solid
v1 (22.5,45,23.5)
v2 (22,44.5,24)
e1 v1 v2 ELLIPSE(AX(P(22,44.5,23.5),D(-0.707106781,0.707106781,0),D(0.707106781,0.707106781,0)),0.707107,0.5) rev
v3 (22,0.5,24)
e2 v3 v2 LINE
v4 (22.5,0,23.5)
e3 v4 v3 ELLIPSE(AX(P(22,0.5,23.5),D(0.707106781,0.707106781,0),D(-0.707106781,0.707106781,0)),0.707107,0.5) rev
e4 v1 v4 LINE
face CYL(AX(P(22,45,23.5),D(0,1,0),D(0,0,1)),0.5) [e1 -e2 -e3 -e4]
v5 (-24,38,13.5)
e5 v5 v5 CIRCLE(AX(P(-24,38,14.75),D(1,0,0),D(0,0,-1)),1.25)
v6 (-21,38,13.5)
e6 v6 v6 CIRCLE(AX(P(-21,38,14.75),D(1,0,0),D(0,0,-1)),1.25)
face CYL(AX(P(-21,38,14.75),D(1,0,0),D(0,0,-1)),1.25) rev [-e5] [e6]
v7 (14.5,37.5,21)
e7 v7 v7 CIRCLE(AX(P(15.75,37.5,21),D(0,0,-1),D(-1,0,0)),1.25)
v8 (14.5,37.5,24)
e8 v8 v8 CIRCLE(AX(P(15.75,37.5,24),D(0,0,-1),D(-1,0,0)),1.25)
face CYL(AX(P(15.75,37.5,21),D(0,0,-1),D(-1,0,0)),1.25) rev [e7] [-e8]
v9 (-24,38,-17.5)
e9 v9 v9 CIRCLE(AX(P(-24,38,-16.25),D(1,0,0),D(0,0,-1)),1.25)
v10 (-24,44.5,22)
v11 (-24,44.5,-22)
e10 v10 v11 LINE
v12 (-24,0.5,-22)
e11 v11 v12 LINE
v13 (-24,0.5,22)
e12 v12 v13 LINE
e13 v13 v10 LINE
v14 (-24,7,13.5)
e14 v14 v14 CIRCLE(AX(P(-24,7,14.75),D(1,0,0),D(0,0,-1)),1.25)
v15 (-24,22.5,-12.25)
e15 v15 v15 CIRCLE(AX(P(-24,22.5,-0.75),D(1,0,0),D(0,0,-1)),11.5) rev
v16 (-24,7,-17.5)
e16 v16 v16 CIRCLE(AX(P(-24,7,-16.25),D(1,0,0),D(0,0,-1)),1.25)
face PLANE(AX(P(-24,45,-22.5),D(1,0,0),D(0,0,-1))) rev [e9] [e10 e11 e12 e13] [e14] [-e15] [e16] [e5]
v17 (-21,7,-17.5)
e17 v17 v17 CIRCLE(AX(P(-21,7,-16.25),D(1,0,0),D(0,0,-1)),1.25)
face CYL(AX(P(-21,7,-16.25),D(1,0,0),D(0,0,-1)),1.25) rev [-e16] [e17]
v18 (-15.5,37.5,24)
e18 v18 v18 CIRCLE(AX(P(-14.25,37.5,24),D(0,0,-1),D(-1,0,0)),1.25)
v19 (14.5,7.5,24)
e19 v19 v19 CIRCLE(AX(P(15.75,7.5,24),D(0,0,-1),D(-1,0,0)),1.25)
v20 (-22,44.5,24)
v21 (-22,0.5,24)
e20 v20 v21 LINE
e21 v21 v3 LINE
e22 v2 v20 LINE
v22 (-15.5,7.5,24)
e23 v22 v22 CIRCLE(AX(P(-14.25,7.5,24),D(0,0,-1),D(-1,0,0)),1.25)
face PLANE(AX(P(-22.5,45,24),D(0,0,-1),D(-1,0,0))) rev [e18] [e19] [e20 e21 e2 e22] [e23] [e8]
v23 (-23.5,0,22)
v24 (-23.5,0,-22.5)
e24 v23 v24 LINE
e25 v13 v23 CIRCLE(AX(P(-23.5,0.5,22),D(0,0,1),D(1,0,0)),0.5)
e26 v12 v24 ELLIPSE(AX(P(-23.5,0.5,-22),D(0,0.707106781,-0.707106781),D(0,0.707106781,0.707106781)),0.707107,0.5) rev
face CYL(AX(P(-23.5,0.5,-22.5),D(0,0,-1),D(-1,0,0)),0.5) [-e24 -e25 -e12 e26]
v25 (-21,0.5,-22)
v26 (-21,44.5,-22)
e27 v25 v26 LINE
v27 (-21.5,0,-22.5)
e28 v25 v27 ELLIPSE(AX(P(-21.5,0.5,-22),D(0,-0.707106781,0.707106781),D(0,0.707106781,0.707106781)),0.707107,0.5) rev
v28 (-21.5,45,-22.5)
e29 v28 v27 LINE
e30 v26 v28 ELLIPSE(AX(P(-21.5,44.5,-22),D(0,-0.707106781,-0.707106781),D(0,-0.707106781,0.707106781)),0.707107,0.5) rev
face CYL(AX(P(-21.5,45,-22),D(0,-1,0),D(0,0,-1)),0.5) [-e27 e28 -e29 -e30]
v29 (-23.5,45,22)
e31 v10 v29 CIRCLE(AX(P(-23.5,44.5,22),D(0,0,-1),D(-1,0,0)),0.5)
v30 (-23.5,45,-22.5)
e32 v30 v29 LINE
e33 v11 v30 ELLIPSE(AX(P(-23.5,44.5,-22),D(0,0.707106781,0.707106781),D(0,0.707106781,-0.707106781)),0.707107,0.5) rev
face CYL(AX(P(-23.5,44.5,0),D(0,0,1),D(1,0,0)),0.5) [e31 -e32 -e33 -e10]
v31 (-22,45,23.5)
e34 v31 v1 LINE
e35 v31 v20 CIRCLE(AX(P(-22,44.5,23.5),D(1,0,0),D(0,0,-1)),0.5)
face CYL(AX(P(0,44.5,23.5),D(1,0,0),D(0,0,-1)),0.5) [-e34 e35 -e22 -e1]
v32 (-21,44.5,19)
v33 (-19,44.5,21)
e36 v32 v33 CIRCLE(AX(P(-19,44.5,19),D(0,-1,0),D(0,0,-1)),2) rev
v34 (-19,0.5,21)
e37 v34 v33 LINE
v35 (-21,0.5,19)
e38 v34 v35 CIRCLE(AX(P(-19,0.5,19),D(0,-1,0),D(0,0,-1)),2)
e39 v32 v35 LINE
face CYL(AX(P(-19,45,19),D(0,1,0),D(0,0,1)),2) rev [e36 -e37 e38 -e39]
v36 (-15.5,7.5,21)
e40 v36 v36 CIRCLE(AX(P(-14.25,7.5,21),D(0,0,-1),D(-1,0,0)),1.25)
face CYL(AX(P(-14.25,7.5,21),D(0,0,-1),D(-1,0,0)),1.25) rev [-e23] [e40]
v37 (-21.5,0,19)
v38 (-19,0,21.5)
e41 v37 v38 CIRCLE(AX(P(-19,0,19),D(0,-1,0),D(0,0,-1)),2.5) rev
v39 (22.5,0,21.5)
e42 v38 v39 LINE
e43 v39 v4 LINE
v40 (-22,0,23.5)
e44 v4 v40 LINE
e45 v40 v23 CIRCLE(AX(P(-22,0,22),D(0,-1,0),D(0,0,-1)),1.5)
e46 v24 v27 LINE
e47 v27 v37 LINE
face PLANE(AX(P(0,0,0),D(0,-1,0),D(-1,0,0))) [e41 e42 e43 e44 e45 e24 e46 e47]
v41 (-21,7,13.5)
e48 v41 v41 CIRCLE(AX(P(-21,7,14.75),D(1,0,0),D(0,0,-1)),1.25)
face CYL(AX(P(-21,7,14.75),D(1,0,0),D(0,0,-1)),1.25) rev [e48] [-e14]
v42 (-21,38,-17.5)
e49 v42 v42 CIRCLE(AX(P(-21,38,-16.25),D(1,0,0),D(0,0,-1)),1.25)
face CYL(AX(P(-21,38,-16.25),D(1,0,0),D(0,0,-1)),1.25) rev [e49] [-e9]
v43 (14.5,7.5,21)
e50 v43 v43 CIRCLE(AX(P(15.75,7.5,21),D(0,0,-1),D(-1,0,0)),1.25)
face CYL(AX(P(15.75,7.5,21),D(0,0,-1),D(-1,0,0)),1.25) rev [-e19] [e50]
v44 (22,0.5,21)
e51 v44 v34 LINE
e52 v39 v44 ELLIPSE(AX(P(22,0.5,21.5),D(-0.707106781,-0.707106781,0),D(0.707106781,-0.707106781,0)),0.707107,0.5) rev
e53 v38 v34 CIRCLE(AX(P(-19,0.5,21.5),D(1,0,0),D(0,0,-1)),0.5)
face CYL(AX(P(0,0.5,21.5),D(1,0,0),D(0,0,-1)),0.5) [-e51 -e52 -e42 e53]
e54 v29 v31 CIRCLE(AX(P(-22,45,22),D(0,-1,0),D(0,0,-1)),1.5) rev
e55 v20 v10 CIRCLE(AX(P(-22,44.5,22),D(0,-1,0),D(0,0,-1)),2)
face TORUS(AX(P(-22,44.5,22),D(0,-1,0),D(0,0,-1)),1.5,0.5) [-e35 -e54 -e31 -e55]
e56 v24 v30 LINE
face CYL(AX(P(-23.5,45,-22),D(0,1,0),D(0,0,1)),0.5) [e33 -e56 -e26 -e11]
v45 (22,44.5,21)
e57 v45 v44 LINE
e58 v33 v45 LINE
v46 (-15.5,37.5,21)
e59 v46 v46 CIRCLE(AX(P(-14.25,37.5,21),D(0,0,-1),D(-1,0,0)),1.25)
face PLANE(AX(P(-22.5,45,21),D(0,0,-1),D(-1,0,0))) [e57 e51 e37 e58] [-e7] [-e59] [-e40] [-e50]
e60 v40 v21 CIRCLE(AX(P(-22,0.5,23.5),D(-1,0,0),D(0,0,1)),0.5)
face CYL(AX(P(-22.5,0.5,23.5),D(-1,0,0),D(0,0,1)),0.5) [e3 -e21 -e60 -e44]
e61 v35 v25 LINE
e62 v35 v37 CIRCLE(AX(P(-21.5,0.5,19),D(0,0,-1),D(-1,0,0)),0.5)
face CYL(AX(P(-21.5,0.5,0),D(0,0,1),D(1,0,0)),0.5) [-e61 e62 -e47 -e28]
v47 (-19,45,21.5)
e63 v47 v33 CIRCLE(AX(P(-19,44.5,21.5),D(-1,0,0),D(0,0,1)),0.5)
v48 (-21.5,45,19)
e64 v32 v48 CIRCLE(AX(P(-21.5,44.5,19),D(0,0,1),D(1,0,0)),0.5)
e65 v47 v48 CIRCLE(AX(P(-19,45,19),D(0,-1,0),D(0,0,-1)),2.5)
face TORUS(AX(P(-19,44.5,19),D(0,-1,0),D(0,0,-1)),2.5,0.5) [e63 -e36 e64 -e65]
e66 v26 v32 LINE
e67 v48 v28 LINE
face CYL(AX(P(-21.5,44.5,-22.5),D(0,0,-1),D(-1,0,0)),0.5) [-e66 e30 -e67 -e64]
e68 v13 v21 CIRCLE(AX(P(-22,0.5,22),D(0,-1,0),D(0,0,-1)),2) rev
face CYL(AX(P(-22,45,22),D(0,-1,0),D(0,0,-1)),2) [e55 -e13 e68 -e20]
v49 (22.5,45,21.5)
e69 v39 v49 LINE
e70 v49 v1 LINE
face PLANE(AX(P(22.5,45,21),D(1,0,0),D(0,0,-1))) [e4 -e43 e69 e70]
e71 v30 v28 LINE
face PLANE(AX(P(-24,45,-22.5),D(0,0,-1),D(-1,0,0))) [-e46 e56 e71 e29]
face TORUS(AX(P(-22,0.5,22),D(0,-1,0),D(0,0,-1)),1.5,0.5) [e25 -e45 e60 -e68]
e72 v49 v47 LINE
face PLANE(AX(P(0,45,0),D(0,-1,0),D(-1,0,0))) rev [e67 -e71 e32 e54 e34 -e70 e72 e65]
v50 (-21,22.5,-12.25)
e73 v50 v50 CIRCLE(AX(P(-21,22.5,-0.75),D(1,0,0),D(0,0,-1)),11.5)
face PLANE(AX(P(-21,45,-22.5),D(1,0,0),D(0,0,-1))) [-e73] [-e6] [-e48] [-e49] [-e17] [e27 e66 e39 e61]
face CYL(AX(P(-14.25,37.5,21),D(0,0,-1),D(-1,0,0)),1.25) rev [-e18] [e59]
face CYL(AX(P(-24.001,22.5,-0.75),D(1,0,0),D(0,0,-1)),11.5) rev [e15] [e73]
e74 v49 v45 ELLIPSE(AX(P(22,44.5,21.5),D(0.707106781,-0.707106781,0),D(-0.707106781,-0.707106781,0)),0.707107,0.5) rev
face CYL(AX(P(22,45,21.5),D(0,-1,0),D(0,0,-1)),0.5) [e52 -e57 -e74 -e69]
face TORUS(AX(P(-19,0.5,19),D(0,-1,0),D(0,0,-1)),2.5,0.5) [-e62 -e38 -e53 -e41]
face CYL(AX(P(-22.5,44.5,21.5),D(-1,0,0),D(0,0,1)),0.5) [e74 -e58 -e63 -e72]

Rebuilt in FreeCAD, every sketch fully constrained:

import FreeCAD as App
import Part
import Sketcher

V = App.Vector


def edges_at(feature, points):
    """Names of the edges that pass closest to the given points."""
    edges = feature.Shape.Edges
    near = lambda p: min(range(len(edges)), key=lambda i: edges[i].distToShape(Part.Vertex(*p))[0])
    return sorted({f"Edge{near(p) + 1}" for p in points})


def add_polygon(sketch, points):
    """Adds a closed chain of lines whose ends are joined by coincident constraints."""
    first, n = sketch.GeometryCount, len(points)
    for a, b in zip(points, points[1:] + points[:1]):
        sketch.addGeometry(Part.LineSegment(App.Vector(*a, 0), App.Vector(*b, 0)), False)
    for i in range(n):
        sketch.addConstraint(Sketcher.Constraint("Coincident", first + i, 2, first + (i + 1) % n, 1))

doc = App.newDocument("Part")
body = doc.addObject("PartDesign::Body", "Body")

# Sketch on XZ plane
sketch1 = body.newObject("Sketcher::SketchObject", "Sketch")
sketch1.AttachmentSupport = (doc.getObject("XZ_Plane"), [""])
sketch1.MapMode = "FlatFace"
add_polygon(sketch1, [(-24, -22.5), (-24, 24), (22.5, 24), (22.5, 21), (-21, 21), (-21, -22.5)])  # lines 0-5
sketch1.addConstraint([
    Sketcher.Constraint("Vertical", 0),
    Sketcher.Constraint("Horizontal", 1),
    Sketcher.Constraint("Vertical", 2),
    Sketcher.Constraint("Horizontal", 3),
    Sketcher.Constraint("Vertical", 4),
    Sketcher.Constraint("Horizontal", 5),
    Sketcher.Constraint("Equal", 1, 0),
    Sketcher.Constraint("Equal", 5, 2),
    Sketcher.Constraint("DistanceX", 5, 2, 5, 1, 3.0),
    Sketcher.Constraint("DistanceX", 1, 1, 1, 2, 46.5),
    Sketcher.Constraint("DistanceX", 0, 2, -1, 1, 24.0),
    Sketcher.Constraint("DistanceY", -1, 1, 0, 2, 24.0),
])
pad1 = body.newObject("PartDesign::Pad", "Pad")
pad1.Profile = sketch1
pad1.Length = 45
pad1.Reversed = True

# Sketch on YZ plane
sketch2 = body.newObject("Sketcher::SketchObject", "Sketch001")
sketch2.AttachmentSupport = (doc.getObject("YZ_Plane"), [""])
sketch2.MapMode = "FlatFace"
sketch2.AttachmentOffset = App.Placement(V(0, 0, -21), App.Rotation())
sketch2.addGeometry([
    Part.Circle(V(38, 14.8, 0), V(0, 0, 1), 1.2),
    Part.Circle(V(38, -16.2, 0), V(0, 0, 1), 1.2),
    Part.Circle(V(7, -16.2, 0), V(0, 0, 1), 1.2),
    Part.Circle(V(7, 14.8, 0), V(0, 0, 1), 1.2),
], False)
sketch2.addConstraint([
    Sketcher.Constraint("Equal", 0, 1),
    Sketcher.Constraint("Equal", 1, 2),
    Sketcher.Constraint("Equal", 2, 3),
    Sketcher.Constraint("Horizontal", 1, 3, 2, 3),
    Sketcher.Constraint("Horizontal", 0, 3, 3, 3),
    Sketcher.Constraint("Vertical", 0, 3, 1, 3),
    Sketcher.Constraint("Vertical", 2, 3, 3, 3),
    Sketcher.Constraint("Diameter", 0, 2.5),
    Sketcher.Constraint("DistanceX", -1, 1, 0, 3, 38.0),
    Sketcher.Constraint("DistanceX", -1, 1, 2, 3, 7.0),
    Sketcher.Constraint("DistanceY", 1, 3, 0, 3, 31.0),
    Sketcher.Constraint("DistanceY", -1, 1, 0, 3, 14.75),
])
doc.recompute()
hole = body.newObject("PartDesign::Hole", "Hole")
hole.Profile = sketch2
hole.ThreadType = "None"
hole.Diameter = 2.5
hole.DepthType = "ThroughAll"
doc.recompute()

fillet = body.newObject("PartDesign::Fillet", "Fillet")
fillet.Base = (hole, edges_at(hole, [(-24, 22.5, 24), (-21, 22.5, 21)]))
fillet.Radius = 2

# Sketch on XY plane
sketch3 = body.newObject("Sketcher::SketchObject", "Sketch002")
sketch3.AttachmentSupport = (doc.getObject("XY_Plane"), [""])
sketch3.MapMode = "FlatFace"
sketch3.AttachmentOffset = App.Placement(V(0, 0, 21), App.Rotation())
sketch3.addGeometry([
    Part.Circle(V(-14.2, 37.5, 0), V(0, 0, 1), 1.2),
    Part.Circle(V(-14.2, 7.5, 0), V(0, 0, 1), 1.2),
    Part.Circle(V(15.8, 7.5, 0), V(0, 0, 1), 1.2),
    Part.Circle(V(15.8, 37.5, 0), V(0, 0, 1), 1.2),
], False)
sketch3.addConstraint([
    Sketcher.Constraint("Equal", 0, 1),
    Sketcher.Constraint("Equal", 1, 2),
    Sketcher.Constraint("Equal", 2, 3),
    Sketcher.Constraint("Horizontal", 1, 3, 2, 3),
    Sketcher.Constraint("Horizontal", 0, 3, 3, 3),
    Sketcher.Constraint("Vertical", 0, 3, 1, 3),
    Sketcher.Constraint("Vertical", 2, 3, 3, 3),
    Sketcher.Constraint("Diameter", 0, 2.5),
    Sketcher.Constraint("DistanceY", 1, 3, 0, 3, 30.0),
    Sketcher.Constraint("DistanceX", 1, 3, 2, 3, 30.0),
    Sketcher.Constraint("DistanceY", -1, 1, 0, 3, 37.5),
    Sketcher.Constraint("DistanceX", 0, 3, -1, 1, 14.25),
])
doc.recompute()
hole2 = body.newObject("PartDesign::Hole", "Hole001")
hole2.Profile = sketch3
hole2.ThreadType = "None"
hole2.Diameter = 2.5
hole2.DepthType = "ThroughAll"
hole2.Reversed = True
doc.recompute()

fillet2 = body.newObject("PartDesign::Fillet", "Fillet001")
fillet2.Base = (hole2, edges_at(hole2, [
    (22.5, 22.5, 24),
    (-21, 45, -1.75),
    (-24, 45, -0.25),
    (0.25, 0, 24),
    (0.25, 45, 24),
    (1.75, 0, 21),
    (-23.414, 0, 23.414),
    (1.75, 45, 21),
    (-23.414, 45, 23.414),
    (-20.414, 0, 20.414),
    (-20.414, 45, 20.414),
    (-24, 0, -0.25),
    (-21, 0, -1.75),
    (-24, 22.5, -22.5),
    (-21, 22.5, -22.5),
    (22.5, 22.5, 21),
]))
fillet2.Radius = 0.5

# Sketch on YZ plane
sketch4 = body.newObject("Sketcher::SketchObject", "Sketch003")
sketch4.AttachmentSupport = (doc.getObject("YZ_Plane"), [""])
sketch4.MapMode = "FlatFace"
sketch4.AttachmentOffset = App.Placement(V(0, 0, -21), App.Rotation())
sketch4.addGeometry(Part.Circle(V(22, -1, 0), V(0, 0, 1), 12), False)
sketch4.addConstraint([
    Sketcher.Constraint("Diameter", 0, 23.0),
    Sketcher.Constraint("DistanceX", -1, 1, 0, 3, 22.5),
    Sketcher.Constraint("DistanceY", 0, 3, -1, 1, 0.75),
])
pocket1 = body.newObject("PartDesign::Pocket", "Pocket")
pocket1.Profile = sketch4
pocket1.Type = "UpToFirst"

doc.recompute()
